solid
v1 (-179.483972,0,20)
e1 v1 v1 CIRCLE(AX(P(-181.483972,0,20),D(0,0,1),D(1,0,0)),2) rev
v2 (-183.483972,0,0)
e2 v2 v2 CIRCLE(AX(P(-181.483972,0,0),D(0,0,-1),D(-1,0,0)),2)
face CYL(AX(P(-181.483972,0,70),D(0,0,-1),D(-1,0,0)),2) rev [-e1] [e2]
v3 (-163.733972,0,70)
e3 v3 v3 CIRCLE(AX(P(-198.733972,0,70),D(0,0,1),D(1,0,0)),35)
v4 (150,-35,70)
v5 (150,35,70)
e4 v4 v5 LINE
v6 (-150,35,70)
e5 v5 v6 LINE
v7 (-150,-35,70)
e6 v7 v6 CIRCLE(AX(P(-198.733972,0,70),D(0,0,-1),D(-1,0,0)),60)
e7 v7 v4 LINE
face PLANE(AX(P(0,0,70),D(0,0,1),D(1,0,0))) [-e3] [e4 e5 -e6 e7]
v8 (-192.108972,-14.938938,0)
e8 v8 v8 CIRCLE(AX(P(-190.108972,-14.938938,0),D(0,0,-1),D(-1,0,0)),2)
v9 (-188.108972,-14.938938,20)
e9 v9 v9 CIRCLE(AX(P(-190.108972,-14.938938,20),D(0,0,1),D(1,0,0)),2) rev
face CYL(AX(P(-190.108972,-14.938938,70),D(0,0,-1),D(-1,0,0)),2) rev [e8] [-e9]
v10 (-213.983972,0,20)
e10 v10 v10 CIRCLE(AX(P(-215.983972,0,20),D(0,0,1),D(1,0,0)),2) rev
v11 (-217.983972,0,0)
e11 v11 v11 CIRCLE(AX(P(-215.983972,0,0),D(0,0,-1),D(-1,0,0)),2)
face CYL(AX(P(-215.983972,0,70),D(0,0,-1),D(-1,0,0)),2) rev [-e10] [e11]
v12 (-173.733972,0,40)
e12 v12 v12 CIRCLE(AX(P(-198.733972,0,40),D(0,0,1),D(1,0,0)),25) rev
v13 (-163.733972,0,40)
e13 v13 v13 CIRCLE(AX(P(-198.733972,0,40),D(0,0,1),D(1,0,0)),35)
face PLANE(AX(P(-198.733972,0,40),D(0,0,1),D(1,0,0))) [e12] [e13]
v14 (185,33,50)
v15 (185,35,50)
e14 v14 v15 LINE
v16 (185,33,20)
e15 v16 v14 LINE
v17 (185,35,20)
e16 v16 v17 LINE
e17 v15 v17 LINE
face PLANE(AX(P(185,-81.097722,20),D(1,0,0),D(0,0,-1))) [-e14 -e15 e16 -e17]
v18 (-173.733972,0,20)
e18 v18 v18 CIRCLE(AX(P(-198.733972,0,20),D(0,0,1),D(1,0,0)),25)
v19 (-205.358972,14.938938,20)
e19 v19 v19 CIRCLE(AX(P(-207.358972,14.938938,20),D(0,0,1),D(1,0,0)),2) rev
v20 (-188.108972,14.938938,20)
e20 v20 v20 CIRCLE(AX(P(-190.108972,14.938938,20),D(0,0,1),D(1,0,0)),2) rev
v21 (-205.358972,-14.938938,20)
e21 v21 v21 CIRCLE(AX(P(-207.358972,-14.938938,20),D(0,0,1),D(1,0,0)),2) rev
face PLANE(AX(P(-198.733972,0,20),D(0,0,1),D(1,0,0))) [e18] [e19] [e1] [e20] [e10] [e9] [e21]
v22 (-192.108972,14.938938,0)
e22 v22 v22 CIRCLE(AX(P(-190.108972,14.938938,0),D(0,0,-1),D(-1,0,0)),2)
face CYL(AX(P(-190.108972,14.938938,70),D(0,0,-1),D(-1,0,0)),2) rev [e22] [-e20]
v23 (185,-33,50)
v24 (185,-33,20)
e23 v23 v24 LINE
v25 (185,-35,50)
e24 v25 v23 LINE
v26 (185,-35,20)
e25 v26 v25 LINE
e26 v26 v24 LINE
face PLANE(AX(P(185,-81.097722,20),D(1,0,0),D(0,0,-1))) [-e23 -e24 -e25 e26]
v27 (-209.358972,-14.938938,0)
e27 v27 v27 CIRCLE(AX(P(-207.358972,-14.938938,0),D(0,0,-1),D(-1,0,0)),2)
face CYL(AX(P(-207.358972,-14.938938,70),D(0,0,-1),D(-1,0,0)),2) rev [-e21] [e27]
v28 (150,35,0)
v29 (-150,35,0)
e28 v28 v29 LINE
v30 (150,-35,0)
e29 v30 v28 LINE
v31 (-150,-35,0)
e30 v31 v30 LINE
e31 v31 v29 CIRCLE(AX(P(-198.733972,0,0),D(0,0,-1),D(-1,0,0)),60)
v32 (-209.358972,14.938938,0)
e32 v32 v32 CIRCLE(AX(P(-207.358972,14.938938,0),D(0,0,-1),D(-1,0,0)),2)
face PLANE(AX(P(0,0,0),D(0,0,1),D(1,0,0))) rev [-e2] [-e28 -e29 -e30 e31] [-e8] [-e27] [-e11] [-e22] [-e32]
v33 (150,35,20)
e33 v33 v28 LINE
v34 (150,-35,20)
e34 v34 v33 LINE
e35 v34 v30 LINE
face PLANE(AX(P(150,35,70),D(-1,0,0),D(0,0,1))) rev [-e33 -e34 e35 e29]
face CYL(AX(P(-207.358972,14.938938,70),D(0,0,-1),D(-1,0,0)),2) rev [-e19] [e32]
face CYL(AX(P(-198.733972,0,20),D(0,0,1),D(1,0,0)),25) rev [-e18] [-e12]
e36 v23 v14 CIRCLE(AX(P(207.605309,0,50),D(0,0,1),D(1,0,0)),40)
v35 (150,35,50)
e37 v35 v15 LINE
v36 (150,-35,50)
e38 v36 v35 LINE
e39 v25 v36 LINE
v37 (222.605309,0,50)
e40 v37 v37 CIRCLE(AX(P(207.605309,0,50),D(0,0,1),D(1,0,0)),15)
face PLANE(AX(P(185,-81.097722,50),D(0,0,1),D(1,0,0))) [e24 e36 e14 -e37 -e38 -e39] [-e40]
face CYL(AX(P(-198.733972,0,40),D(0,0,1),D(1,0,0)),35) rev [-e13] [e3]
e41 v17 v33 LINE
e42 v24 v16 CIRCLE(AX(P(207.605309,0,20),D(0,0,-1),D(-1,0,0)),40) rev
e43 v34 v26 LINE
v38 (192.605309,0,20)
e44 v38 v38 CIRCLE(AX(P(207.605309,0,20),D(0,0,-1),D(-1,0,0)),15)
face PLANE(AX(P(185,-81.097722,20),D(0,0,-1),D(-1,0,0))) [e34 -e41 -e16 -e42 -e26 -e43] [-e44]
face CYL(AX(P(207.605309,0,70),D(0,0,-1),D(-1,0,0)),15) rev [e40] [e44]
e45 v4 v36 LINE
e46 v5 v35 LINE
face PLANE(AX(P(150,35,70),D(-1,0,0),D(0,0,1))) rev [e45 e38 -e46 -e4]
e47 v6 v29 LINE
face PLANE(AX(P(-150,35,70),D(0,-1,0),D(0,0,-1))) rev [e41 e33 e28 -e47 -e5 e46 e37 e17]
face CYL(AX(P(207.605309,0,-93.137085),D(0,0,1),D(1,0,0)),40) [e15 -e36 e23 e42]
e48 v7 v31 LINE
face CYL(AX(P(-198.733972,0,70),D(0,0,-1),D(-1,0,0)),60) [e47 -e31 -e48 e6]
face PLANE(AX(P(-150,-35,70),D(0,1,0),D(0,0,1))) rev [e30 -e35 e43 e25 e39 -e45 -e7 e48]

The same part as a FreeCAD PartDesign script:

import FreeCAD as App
import Part
import Sketcher


def add_polygon(sketch, points):
    """Adds a closed chain of lines whose ends are joined by coincident constraints."""
    first, n = sketch.GeometryCount, len(points)
    for a, b in zip(points, points[1:] + points[:1]):
        sketch.addGeometry(Part.LineSegment(App.Vector(*a, 0), App.Vector(*b, 0)), False)
    for i in range(n):
        sketch.addConstraint(Sketcher.Constraint("Coincident", first + i, 2, first + (i + 1) % n, 1))

doc = App.newDocument("Part")
params = doc.addObject("Spreadsheet::Sheet", "Params")
for row, (alias, value) in enumerate([
    ("sketch1_width", "300 mm"),
    ("sketch1_height", "70 mm"),
    ("pad1_length", "70 mm"),
    ("sketch2_diameter", "120 mm"),
    ("pad2_length", "70 mm"),
    ("sketch3_width", "35 mm"),
    ("sketch3_height", "30 mm"),
    ("pad3_length", "70 mm"),
    ("sketch4_diameter", "80 mm"),
    ("pad4_length", "30 mm"),
    ("sketch5_diameter", "30 mm"),
    ("sketch6_diameter", "4 mm"),
    ("sketch7_diameter", "50 mm"),
    ("pocket3_length", "50 mm"),
    ("sketch8_diameter", "70 mm"),
    ("pocket4_length", "30 mm"),
], start=1):
    params.set(f"A{row}", alias)
    params.set(f"B{row}", "=" + value)
    params.setAlias(f"B{row}", alias)

body = doc.addObject("PartDesign::Body", "Body")

# Sketch on XY plane
sketch1 = body.newObject("Sketcher::SketchObject", "Sketch")
sketch1.AttachmentSupport = (doc.getObject("XY_Plane"), [""])
sketch1.MapMode = "FlatFace"
add_polygon(sketch1, [(-150, 35), (-150, -35), (150, -35), (150, 35)])  # lines 0-3
sketch1.addConstraint([
    Sketcher.Constraint("Vertical", 0),
    Sketcher.Constraint("Horizontal", 1),
    Sketcher.Constraint("Vertical", 2),
    Sketcher.Constraint("Horizontal", 3),
    Sketcher.Constraint("Symmetric", 0, 2, 2, 2, -1, 1),
    Sketcher.Constraint("DistanceX", 1, 1, 1, 2, 300.0),
    Sketcher.Constraint("DistanceY", 0, 2, 0, 1, 70.0),
])
sketch1.setExpression("Constraints[9]", "Params.sketch1_width")
sketch1.setExpression("Constraints[10]", "Params.sketch1_height")
pad1 = body.newObject("PartDesign::Pad", "Pad")
pad1.Profile = sketch1
pad1.setExpression("Length", "Params.pad1_length")

# Sketch on XY plane
sketch2 = body.newObject("Sketcher::SketchObject", "Sketch001")
sketch2.AttachmentSupport = (doc.getObject("XY_Plane"), [""])
sketch2.MapMode = "FlatFace"
sketch2.addGeometry(Part.Circle(App.Vector(-199, 0, 0), App.Vector(0, 0, 1), 60), False)
sketch2.addConstraint([
    Sketcher.Constraint("PointOnObject", 0, 3, -1),
    Sketcher.Constraint("Diameter", 0, 120.0),
    Sketcher.Constraint("DistanceX", 0, 3, -1, 1, 198.733972),
])
sketch2.setExpression("Constraints[1]", "Params.sketch2_diameter")
pad2 = body.newObject("PartDesign::Pad", "Pad001")
pad2.Profile = sketch2
pad2.setExpression("Length", "Params.pad2_length")

# Sketch on XZ plane
sketch3 = body.newObject("Sketcher::SketchObject", "Sketch002")
sketch3.AttachmentSupport = (doc.getObject("XZ_Plane"), [""])
sketch3.MapMode = "FlatFace"
sketch3.AttachmentOffset = App.Placement(App.Vector(0, 0, -35), App.Rotation())
add_polygon(sketch3, [(150, 20), (150, 50), (185, 50), (185, 20)])  # lines 0-3
sketch3.addConstraint([
    Sketcher.Constraint("Vertical", 0),
    Sketcher.Constraint("Horizontal", 1),
    Sketcher.Constraint("Vertical", 2),
    Sketcher.Constraint("Horizontal", 3),
    Sketcher.Constraint("DistanceX", 1, 1, 1, 2, 35.0),
    Sketcher.Constraint("DistanceY", 0, 1, 0, 2, 30.0),
    Sketcher.Constraint("DistanceX", -1, 1, 0, 2, 150.0),
    Sketcher.Constraint("DistanceY", -1, 1, 0, 2, 50.0),
])
sketch3.setExpression("Constraints[8]", "Params.sketch3_width")
sketch3.setExpression("Constraints[9]", "Params.sketch3_height")
pad3 = body.newObject("PartDesign::Pad", "Pad002")
pad3.Profile = sketch3
pad3.setExpression("Length", "Params.pad3_length")

# Sketch on XY plane
sketch4 = body.newObject("Sketcher::SketchObject", "Sketch003")
sketch4.AttachmentSupport = (doc.getObject("XY_Plane"), [""])
sketch4.MapMode = "FlatFace"
sketch4.AttachmentOffset = App.Placement(App.Vector(0, 0, 50), App.Rotation())
sketch4.addGeometry(Part.Circle(App.Vector(208, 0, 0), App.Vector(0, 0, 1), 40), False)
sketch4.addConstraint([
    Sketcher.Constraint("PointOnObject", 0, 3, -1),
    Sketcher.Constraint("Diameter", 0, 80.0),
    Sketcher.Constraint("DistanceX", -1, 1, 0, 3, 207.605309),
])
sketch4.setExpression("Constraints[1]", "Params.sketch4_diameter")
pad4 = body.newObject("PartDesign::Pad", "Pad003")
pad4.Profile = sketch4
pad4.setExpression("Length", "Params.pad4_length")
pad4.Reversed = True

# Sketch on XY plane
sketch5 = body.newObject("Sketcher::SketchObject", "Sketch004")
sketch5.AttachmentSupport = (doc.getObject("XY_Plane"), [""])
sketch5.MapMode = "FlatFace"
sketch5.AttachmentOffset = App.Placement(App.Vector(0, 0, 20), App.Rotation())
sketch5.addGeometry(Part.Circle(App.Vector(208, 0, 0), App.Vector(0, 0, 1), 15), False)
sketch5.addConstraint([
    Sketcher.Constraint("PointOnObject", 0, 3, -1),
    Sketcher.Constraint("Diameter", 0, 30.0),
    Sketcher.Constraint("DistanceX", -1, 1, 0, 3, 207.605309),
])
sketch5.setExpression("Constraints[1]", "Params.sketch5_diameter")
pocket1 = body.newObject("PartDesign::Pocket", "Pocket")
pocket1.Profile = sketch5
pocket1.Type = "ThroughAll"
pocket1.Reversed = True

# Sketch on XY plane
sketch6 = body.newObject("Sketcher::SketchObject", "Sketch005")
sketch6.AttachmentSupport = (doc.getObject("XY_Plane"), [""])
sketch6.MapMode = "FlatFace"
sketch6.addGeometry([
    Part.Circle(App.Vector(-216, 0, 0), App.Vector(0, 0, 1), 2),  # 0
    Part.Circle(App.Vector(-207.4, -14.9, 0), App.Vector(0, 0, 1), 2),  # 1
    Part.Circle(App.Vector(-190.1, -14.9, 0), App.Vector(0, 0, 1), 2),  # 2
    Part.Circle(App.Vector(-181.5, 0, 0), App.Vector(0, 0, 1), 2),  # 3
    Part.Circle(App.Vector(-190.1, 14.9, 0), App.Vector(0, 0, 1), 2),  # 4
    Part.Circle(App.Vector(-207.4, 14.9, 0), App.Vector(0, 0, 1), 2),  # 5
], False)
sketch6.addConstraint([
    Sketcher.Constraint("Equal", 0, 1),
    Sketcher.Constraint("Equal", 1, 2),
    Sketcher.Constraint("Equal", 2, 3),
    Sketcher.Constraint("Equal", 3, 4),
    Sketcher.Constraint("Equal", 4, 5),
    Sketcher.Constraint("Symmetric", 2, 3, 4, 3, -1),
    Sketcher.Constraint("Symmetric", 1, 3, 5, 3, -1),
    Sketcher.Constraint("PointOnObject", 0, 3, -1),
    Sketcher.Constraint("PointOnObject", 3, 3, -1),
    Sketcher.Constraint("Horizontal", 1, 3, 2, 3),
    Sketcher.Constraint("Diameter", 0, 4.0),
    Sketcher.Constraint("DistanceX", 0, 3, 3, 3, 34.5),
    Sketcher.Constraint("DistanceX", 1, 3, 2, 3, 17.25),
    Sketcher.Constraint("DistanceX", 0, 3, 1, 3, 8.625),
    Sketcher.Constraint("DistanceX", 0, 3, -1, 1, 215.983972),
    Sketcher.Constraint("DistanceY", 1, 3, -1, 1, 14.938938),
])
sketch6.setExpression("Constraints[10]", "Params.sketch6_diameter")
pocket2 = body.newObject("PartDesign::Pocket", "Pocket001")
pocket2.Profile = sketch6
pocket2.Type = "ThroughAll"
pocket2.Reversed = True

# Sketch on XY plane
sketch7 = body.newObject("Sketcher::SketchObject", "Sketch006")
sketch7.AttachmentSupport = (doc.getObject("XY_Plane"), [""])
sketch7.MapMode = "FlatFace"
sketch7.AttachmentOffset = App.Placement(App.Vector(0, 0, 70), App.Rotation())
sketch7.addGeometry(Part.Circle(App.Vector(-199, 0, 0), App.Vector(0, 0, 1), 25), False)
sketch7.addConstraint([
    Sketcher.Constraint("PointOnObject", 0, 3, -1),
    Sketcher.Constraint("Diameter", 0, 50.0),
    Sketcher.Constraint("DistanceX", 0, 3, -1, 1, 198.733972),
])
sketch7.setExpression("Constraints[1]", "Params.sketch7_diameter")
pocket3 = body.newObject("PartDesign::Pocket", "Pocket002")
pocket3.Profile = sketch7
pocket3.setExpression("Length", "Params.pocket3_length")

# Sketch on XY plane
sketch8 = body.newObject("Sketcher::SketchObject", "Sketch007")
sketch8.AttachmentSupport = (doc.getObject("XY_Plane"), [""])
sketch8.MapMode = "FlatFace"
sketch8.AttachmentOffset = App.Placement(App.Vector(0, 0, 70), App.Rotation())
sketch8.addGeometry(Part.Circle(App.Vector(-199, 0, 0), App.Vector(0, 0, 1), 35), False)
sketch8.addConstraint([
    Sketcher.Constraint("PointOnObject", 0, 3, -1),
    Sketcher.Constraint("Diameter", 0, 70.0),
    Sketcher.Constraint("DistanceX", 0, 3, -1, 1, 198.733972),
])
sketch8.setExpression("Constraints[1]", "Params.sketch8_diameter")
pocket4 = body.newObject("PartDesign::Pocket", "Pocket003")
pocket4.Profile = sketch8
pocket4.setExpression("Length", "Params.pocket4_length")

doc.recompute()
